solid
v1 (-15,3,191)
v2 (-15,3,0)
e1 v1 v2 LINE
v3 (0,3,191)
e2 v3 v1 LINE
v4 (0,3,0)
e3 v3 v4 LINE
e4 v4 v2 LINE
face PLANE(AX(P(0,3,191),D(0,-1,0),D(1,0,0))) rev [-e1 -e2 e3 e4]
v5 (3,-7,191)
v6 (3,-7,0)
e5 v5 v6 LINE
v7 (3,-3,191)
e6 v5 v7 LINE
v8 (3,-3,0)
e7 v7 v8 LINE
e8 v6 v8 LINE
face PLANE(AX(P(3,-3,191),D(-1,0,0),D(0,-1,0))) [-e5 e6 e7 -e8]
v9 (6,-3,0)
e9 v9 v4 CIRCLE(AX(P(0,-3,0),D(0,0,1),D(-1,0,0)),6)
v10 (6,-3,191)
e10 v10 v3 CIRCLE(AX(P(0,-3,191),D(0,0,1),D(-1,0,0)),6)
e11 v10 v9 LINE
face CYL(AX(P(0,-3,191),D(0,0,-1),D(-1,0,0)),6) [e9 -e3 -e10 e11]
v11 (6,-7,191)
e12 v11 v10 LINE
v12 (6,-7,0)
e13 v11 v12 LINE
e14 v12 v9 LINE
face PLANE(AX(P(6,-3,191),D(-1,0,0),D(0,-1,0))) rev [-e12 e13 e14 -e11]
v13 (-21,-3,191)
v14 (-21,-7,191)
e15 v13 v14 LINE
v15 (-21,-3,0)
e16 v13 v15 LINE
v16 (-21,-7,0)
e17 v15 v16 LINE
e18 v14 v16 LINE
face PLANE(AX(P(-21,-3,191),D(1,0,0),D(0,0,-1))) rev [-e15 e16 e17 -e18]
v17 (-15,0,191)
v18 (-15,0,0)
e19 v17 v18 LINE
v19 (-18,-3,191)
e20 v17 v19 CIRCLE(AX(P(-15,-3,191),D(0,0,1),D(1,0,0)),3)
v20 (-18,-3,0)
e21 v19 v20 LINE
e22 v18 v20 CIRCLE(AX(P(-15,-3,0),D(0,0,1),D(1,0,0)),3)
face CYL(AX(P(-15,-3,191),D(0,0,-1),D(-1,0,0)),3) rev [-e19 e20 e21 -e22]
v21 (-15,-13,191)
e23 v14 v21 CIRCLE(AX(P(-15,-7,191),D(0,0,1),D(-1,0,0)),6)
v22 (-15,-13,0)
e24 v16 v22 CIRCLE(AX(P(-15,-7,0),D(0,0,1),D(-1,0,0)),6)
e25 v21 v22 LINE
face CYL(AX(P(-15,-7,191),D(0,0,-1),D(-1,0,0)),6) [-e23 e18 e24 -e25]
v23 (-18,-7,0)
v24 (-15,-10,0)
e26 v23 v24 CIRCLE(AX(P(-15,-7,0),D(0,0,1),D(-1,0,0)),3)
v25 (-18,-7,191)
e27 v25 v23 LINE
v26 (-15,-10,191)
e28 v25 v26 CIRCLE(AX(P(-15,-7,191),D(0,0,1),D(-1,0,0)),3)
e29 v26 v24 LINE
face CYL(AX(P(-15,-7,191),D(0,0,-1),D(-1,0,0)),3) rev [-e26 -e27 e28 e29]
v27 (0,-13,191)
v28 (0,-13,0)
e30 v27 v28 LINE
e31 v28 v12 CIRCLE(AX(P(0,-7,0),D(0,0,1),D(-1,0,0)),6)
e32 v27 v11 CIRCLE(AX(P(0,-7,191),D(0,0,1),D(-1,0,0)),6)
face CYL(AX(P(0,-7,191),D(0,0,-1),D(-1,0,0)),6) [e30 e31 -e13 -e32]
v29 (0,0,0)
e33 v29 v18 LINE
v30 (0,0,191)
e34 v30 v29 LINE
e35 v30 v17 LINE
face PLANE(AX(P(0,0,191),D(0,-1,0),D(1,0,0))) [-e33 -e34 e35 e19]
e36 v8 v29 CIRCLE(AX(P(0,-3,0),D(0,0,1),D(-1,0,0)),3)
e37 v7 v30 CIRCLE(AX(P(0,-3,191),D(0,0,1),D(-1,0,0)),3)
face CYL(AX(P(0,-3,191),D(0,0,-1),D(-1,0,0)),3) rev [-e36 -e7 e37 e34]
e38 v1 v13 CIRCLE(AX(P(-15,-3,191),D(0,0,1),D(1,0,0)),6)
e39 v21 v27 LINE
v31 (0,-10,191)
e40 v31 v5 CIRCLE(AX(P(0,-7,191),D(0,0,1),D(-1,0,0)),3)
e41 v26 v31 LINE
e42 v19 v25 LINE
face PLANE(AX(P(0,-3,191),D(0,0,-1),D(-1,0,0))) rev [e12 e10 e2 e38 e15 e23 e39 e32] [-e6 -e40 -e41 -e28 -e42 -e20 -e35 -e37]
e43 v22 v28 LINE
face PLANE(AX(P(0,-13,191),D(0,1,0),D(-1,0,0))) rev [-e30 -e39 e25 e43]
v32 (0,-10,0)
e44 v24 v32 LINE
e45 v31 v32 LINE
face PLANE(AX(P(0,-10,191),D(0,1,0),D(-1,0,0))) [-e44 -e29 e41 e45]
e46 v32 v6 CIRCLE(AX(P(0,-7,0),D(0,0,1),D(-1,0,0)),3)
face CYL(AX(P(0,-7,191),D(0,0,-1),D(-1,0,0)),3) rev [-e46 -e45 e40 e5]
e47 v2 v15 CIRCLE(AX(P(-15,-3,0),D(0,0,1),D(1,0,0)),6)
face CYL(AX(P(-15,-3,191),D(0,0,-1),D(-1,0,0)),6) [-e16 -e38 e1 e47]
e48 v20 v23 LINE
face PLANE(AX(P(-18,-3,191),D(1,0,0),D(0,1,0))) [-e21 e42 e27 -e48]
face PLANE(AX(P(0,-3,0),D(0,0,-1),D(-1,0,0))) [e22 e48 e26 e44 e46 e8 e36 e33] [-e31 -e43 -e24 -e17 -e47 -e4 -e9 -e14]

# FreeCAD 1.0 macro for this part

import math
import FreeCAD as App
import Part
import Sketcher
from FreeCAD import Vector
Q = App.Units.Quantity

doc = App.newDocument("Part")
params = doc.addObject("Spreadsheet::Sheet", "Params")
for row, (alias, value) in enumerate([
    ("sketch1_radius", "6 mm"),
    ("sketch1_radius2", "3 mm"),
    ("sketch1_width", "15 mm"),
    ("sketch1_height", "4 mm"),
    ("pad1_length", "191 mm"),
], start=1):
    params.set(f"A{row}", alias)
    params.set(f"B{row}", "=" + value)
    params.setAlias(f"B{row}", alias)

body = doc.addObject("PartDesign::Body", "Body")

sketch1 = body.newObject("Sketcher::SketchObject", "Sketch")
sketch1.AttachmentSupport = (doc.getObject("XY_Plane"), [""])
sketch1.MapMode = "FlatFace"
sketch1.addGeometry([
    Part.LineSegment(Vector(0, 3, 0), Vector(-15, 3, 0)),
    Part.ArcOfCircle(Part.Circle(Vector(-15, -3, 0), Vector(0, 0, 1), 6), math.radians(90), math.radians(180)),
    Part.LineSegment(Vector(-21, -3, 0), Vector(-21, -7, 0)),
    Part.ArcOfCircle(Part.Circle(Vector(-15, -7, 0), Vector(0, 0, 1), 6), math.radians(180), math.radians(270)),
    Part.LineSegment(Vector(-15, -13, 0), Vector(0, -13, 0)),
    Part.ArcOfCircle(Part.Circle(Vector(0, -7, 0), Vector(0, 0, 1), 6), math.radians(-90), math.radians(0)),
    Part.LineSegment(Vector(6, -7, 0), Vector(6, -3, 0)),
    Part.ArcOfCircle(Part.Circle(Vector(0, -3, 0), Vector(0, 0, 1), 6), math.radians(0), math.radians(90)),
    Part.LineSegment(Vector(-15, 0, 0), Vector(0, 0, 0)),
    Part.ArcOfCircle(Part.Circle(Vector(0, -3, 0), Vector(0, 0, 1), 3), math.radians(0), math.radians(90)),
    Part.LineSegment(Vector(3, -3, 0), Vector(3, -7, 0)),
    Part.ArcOfCircle(Part.Circle(Vector(0, -7, 0), Vector(0, 0, 1), 3), math.radians(-90), math.radians(0)),
    Part.LineSegment(Vector(0, -10, 0), Vector(-15, -10, 0)),
    Part.ArcOfCircle(Part.Circle(Vector(-15, -7, 0), Vector(0, 0, 1), 3), math.radians(180), math.radians(270)),
    Part.LineSegment(Vector(-18, -7, 0), Vector(-18, -3, 0)),
    Part.ArcOfCircle(Part.Circle(Vector(-15, -3, 0), Vector(0, 0, 1), 3), math.radians(90), math.radians(180)),
], False)
sketch1.addConstraint([
    Sketcher.Constraint("Tangent", 0, 2, 1, 1),
    Sketcher.Constraint("Tangent", 1, 2, 2, 1),
    Sketcher.Constraint("Tangent", 2, 2, 3, 1),
    Sketcher.Constraint("Tangent", 3, 2, 4, 1),
    Sketcher.Constraint("Tangent", 4, 2, 5, 1),
    Sketcher.Constraint("Tangent", 5, 2, 6, 1),
    Sketcher.Constraint("Tangent", 6, 2, 7, 1),
    Sketcher.Constraint("Tangent", 7, 2, 0, 1),
    Sketcher.Constraint("Tangent", 8, 2, 9, 2),
    Sketcher.Constraint("Tangent", 9, 1, 10, 1),
    Sketcher.Constraint("Tangent", 10, 2, 11, 2),
    Sketcher.Constraint("Tangent", 11, 1, 12, 1),
    Sketcher.Constraint("Tangent", 12, 2, 13, 2),
    Sketcher.Constraint("Tangent", 13, 1, 14, 1),
    Sketcher.Constraint("Tangent", 14, 2, 15, 2),
    Sketcher.Constraint("Tangent", 15, 1, 8, 1),
    Sketcher.Constraint("Horizontal", 0),
    Sketcher.Constraint("Vertical", 2),
    Sketcher.Constraint("Horizontal", 4),
    Sketcher.Constraint("Vertical", 6),
    Sketcher.Constraint("Horizontal", 8),
    Sketcher.Constraint("Vertical", 10),
    Sketcher.Constraint("Horizontal", 12),
    Sketcher.Constraint("Vertical", 14),
    Sketcher.Constraint("Coincident", 8, 2, -1, 1),
    Sketcher.Constraint("Coincident", 9, 3, 7, 3),
    Sketcher.Constraint("Coincident", 11, 3, 5, 3),
    Sketcher.Constraint("Coincident", 13, 3, 3, 3),
    Sketcher.Constraint("Equal", 1, 3),
    Sketcher.Constraint("Equal", 3, 5),
    Sketcher.Constraint("Equal", 5, 7),
    Sketcher.Constraint("Equal", 13, 15),
    Sketcher.Constraint("Radius", 1, Q("6 mm")),
    Sketcher.Constraint("Radius", 9, Q("3 mm")),
    Sketcher.Constraint("DistanceX", 0, 2, 0, 1, Q("15 mm")),
    Sketcher.Constraint("DistanceY", 2, 2, 2, 1, Q("4 mm")),
])
sketch1.setExpression("Constraints[32]", "Params.sketch1_radius")
sketch1.setExpression("Constraints[33]", "Params.sketch1_radius2")
sketch1.setExpression("Constraints[34]", "Params.sketch1_width")
sketch1.setExpression("Constraints[35]", "Params.sketch1_height")
pad1 = body.newObject("PartDesign::Pad", "Pad")
pad1.Profile = sketch1
pad1.setExpression("Length", "Params.pad1_length")

doc.recompute()
